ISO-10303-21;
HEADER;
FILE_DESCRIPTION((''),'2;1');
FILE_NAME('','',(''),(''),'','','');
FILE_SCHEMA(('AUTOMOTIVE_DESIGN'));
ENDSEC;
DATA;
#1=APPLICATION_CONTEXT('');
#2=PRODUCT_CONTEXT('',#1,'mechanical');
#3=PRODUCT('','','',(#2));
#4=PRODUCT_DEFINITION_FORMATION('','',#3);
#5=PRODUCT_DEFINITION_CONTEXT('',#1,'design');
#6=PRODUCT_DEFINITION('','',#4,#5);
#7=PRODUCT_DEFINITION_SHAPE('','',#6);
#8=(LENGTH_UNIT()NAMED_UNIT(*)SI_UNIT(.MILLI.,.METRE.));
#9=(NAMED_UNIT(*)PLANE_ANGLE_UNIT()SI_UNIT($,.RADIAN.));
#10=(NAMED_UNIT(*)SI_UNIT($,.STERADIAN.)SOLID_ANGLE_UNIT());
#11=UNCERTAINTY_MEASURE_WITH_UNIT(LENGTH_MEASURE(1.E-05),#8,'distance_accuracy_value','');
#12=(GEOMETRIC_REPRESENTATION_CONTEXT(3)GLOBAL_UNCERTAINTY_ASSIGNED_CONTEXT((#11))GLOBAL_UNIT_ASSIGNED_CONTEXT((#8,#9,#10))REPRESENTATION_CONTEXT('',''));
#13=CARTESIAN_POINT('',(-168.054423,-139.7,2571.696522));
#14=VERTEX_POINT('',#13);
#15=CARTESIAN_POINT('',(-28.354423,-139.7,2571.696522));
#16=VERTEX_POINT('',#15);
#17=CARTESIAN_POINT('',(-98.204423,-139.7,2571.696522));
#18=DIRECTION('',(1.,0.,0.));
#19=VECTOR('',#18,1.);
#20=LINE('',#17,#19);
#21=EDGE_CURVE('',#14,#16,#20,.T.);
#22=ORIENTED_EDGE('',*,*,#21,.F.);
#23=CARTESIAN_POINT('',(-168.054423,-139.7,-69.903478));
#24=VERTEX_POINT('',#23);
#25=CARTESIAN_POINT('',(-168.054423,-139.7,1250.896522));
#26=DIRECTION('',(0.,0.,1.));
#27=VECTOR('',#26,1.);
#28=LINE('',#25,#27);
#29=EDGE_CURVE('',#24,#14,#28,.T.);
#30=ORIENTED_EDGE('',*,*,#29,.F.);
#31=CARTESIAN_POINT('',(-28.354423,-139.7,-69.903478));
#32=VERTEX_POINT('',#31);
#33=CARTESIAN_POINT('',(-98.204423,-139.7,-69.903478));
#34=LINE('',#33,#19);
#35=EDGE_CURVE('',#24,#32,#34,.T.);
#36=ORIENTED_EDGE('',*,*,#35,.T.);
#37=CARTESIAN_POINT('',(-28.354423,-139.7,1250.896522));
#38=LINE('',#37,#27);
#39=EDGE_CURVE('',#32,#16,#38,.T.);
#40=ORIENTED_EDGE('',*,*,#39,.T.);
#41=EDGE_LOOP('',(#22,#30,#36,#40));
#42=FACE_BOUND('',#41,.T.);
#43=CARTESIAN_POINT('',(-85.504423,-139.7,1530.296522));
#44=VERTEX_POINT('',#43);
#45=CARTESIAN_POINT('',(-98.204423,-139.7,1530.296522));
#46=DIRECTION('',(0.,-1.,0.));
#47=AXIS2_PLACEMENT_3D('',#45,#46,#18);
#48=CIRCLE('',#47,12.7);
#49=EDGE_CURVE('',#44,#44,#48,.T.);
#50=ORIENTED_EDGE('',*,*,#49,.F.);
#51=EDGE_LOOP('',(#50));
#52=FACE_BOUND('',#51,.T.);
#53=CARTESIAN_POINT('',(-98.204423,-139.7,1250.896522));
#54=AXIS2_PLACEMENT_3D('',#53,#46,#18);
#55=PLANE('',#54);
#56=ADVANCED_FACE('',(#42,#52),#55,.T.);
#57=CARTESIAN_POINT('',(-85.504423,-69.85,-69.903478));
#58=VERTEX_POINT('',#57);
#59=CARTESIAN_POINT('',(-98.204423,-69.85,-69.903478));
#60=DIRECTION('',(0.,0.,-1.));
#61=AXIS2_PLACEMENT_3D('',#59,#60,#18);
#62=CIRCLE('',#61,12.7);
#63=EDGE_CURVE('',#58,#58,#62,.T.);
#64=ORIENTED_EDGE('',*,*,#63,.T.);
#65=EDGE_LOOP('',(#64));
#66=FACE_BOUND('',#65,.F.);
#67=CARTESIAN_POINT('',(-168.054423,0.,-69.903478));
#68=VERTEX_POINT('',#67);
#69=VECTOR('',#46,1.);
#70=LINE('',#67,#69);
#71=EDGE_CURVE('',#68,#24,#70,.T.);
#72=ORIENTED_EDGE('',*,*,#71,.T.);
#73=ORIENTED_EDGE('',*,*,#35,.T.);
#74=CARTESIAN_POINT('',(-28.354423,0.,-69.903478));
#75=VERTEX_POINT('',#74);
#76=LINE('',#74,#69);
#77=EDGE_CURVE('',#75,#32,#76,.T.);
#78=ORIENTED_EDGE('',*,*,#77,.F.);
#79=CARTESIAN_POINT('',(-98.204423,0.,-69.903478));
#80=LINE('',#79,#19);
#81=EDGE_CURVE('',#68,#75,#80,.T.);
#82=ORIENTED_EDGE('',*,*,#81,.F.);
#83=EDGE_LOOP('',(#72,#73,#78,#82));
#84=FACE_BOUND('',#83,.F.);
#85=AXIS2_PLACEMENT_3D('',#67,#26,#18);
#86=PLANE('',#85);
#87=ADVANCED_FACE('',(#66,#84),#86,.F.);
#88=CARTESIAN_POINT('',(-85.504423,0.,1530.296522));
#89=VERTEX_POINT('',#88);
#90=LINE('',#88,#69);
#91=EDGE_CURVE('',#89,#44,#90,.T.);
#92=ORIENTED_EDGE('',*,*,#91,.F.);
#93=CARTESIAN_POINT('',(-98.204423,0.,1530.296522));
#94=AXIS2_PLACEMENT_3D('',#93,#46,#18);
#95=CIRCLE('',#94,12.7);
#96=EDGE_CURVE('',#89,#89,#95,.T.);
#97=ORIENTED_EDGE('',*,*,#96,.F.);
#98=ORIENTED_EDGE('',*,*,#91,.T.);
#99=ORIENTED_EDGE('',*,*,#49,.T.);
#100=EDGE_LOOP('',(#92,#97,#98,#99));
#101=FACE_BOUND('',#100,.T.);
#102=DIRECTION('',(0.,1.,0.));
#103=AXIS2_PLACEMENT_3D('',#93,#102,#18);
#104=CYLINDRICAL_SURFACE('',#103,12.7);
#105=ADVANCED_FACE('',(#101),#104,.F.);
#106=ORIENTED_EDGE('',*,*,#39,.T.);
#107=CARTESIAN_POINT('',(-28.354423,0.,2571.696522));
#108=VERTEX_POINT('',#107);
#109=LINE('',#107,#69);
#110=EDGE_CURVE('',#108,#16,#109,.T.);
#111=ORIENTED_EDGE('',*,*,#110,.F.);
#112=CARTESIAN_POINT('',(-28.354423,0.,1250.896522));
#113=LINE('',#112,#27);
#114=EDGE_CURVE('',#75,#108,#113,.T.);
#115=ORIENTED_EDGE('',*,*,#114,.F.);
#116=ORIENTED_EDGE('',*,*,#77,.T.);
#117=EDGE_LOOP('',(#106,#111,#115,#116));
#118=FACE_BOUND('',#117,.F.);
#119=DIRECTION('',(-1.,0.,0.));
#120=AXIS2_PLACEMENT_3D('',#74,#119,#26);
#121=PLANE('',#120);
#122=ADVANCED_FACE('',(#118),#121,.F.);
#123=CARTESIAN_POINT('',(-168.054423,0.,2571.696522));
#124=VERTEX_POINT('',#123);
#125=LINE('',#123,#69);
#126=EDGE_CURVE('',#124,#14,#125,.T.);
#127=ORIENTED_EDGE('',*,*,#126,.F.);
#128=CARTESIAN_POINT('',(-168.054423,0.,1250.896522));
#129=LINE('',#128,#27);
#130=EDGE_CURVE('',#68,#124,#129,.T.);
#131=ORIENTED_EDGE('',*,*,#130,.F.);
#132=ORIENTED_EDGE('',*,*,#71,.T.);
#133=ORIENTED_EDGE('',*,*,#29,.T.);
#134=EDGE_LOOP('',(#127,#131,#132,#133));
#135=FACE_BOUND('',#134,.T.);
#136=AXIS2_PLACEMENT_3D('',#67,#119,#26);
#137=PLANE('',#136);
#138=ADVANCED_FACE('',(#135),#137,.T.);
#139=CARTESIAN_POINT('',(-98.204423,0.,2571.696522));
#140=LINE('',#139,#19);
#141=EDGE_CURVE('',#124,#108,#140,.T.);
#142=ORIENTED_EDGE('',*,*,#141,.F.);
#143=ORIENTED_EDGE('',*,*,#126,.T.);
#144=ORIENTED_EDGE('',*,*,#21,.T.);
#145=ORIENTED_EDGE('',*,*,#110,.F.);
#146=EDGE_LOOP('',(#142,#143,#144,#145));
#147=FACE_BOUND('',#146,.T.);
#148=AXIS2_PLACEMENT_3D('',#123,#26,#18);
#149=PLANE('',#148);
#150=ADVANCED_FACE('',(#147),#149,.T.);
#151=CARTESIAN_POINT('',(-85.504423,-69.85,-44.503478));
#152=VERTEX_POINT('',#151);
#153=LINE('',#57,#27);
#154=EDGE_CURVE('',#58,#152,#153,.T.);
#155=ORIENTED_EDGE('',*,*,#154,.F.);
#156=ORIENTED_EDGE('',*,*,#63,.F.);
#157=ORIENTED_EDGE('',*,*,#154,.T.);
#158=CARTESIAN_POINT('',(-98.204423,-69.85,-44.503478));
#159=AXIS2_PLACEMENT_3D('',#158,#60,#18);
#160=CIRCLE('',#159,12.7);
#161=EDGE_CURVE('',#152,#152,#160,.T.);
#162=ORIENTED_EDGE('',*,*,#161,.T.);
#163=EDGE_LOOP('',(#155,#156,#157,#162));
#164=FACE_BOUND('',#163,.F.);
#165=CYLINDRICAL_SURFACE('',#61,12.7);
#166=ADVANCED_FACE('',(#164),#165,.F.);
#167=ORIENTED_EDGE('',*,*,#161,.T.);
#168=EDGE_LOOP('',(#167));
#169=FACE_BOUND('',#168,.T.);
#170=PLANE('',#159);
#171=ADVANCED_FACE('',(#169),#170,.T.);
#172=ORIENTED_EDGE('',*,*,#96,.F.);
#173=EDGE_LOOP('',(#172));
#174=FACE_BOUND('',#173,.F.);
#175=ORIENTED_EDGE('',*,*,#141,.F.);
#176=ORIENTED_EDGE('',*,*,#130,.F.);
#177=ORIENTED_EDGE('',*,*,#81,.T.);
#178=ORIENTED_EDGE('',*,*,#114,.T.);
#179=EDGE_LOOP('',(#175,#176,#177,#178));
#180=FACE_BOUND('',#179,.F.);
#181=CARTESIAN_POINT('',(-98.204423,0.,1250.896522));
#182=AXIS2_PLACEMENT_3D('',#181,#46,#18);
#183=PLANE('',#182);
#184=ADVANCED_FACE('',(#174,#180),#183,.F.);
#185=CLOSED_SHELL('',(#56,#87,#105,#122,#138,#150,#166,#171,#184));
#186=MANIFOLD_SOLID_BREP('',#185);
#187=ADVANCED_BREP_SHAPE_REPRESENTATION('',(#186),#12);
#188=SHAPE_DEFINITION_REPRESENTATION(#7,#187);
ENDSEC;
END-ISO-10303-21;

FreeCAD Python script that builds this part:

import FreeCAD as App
import Part
import Sketcher
Q = App.Units.Quantity

doc = App.newDocument("Part")
body = doc.addObject("PartDesign::Body", "Body")

# Sketch on XZ plane
sketch1 = doc.addObject("Sketcher::SketchObject", "Sketch")
body.addObject(sketch1)
sketch1.AttachmentSupport = (doc.XZ_Plane, [""])
sketch1.MapMode = "FlatFace"
sketch1.addGeometry(Part.LineSegment(App.Vector(-168, 2572, 0), App.Vector(-168, -70, 0)), False)
sketch1.addGeometry(Part.LineSegment(App.Vector(-168, -70, 0), App.Vector(-28, -70, 0)), False)
sketch1.addGeometry(Part.LineSegment(App.Vector(-28, -70, 0), App.Vector(-28, 2572, 0)), False)
sketch1.addGeometry(Part.LineSegment(App.Vector(-28, 2572, 0), App.Vector(-168, 2572, 0)), False)
sketch1.addGeometry(Part.Circle(App.Vector(-98, 1530, 0), App.Vector(0, 0, 1), 13), False)
sketch1.addConstraint(Sketcher.Constraint("Coincident", 0, 2, 1, 1))
sketch1.addConstraint(Sketcher.Constraint("Coincident", 1, 2, 2, 1))
sketch1.addConstraint(Sketcher.Constraint("Coincident", 2, 2, 3, 1))
sketch1.addConstraint(Sketcher.Constraint("Coincident", 3, 2, 0, 1))
sketch1.addConstraint(Sketcher.Constraint("Vertical", 0))
sketch1.addConstraint(Sketcher.Constraint("Horizontal", 1))
sketch1.addConstraint(Sketcher.Constraint("Vertical", 2))
sketch1.addConstraint(Sketcher.Constraint("Horizontal", 3))
sketch1.addConstraint(Sketcher.Constraint("Diameter", 4, Q("1 in")))
sketch1.addConstraint(Sketcher.Constraint("DistanceY", 0, 2, 0, 1, Q("104 in")))
sketch1.addConstraint(Sketcher.Constraint("DistanceX", 1, 1, 1, 2, Q("5.5 in")))
sketch1.addConstraint(Sketcher.Constraint("DistanceY", 0, 2, 4, 3, Q("63 in")))
sketch1.addConstraint(Sketcher.Constraint("DistanceX", 0, 2, 4, 3, Q("2.75 in")))
sketch1.addConstraint(Sketcher.Constraint("DistanceY", -1, 1, 4, 3, Q("1530.296522 mm")))
sketch1.addConstraint(Sketcher.Constraint("DistanceX", 4, 3, -1, 1, Q("98.204423 mm")))
pad1 = doc.addObject("PartDesign::Pad", "Pad")
body.addObject(pad1)
pad1.Profile = sketch1
pad1.Length = Q("5.5 in")

# Sketch on XY plane
sketch2 = doc.addObject("Sketcher::SketchObject", "Sketch001")
body.addObject(sketch2)
sketch2.AttachmentSupport = (doc.XY_Plane, [""])
sketch2.MapMode = "FlatFace"
sketch2.AttachmentOffset = App.Placement(App.Vector(0, 0, -69.903478), App.Rotation())
sketch2.addGeometry(Part.Circle(App.Vector(-98, -70, 0), App.Vector(0, 0, 1), 13), False)
sketch2.addConstraint(Sketcher.Constraint("Diameter", 0, Q("1 in")))
sketch2.addConstraint(Sketcher.Constraint("DistanceY", 0, 3, -1, 1, Q("2.75 in")))
sketch2.addConstraint(Sketcher.Constraint("DistanceX", 0, 3, -1, 1, Q("98.204423 mm")))
pocket1 = doc.addObject("PartDesign::Pocket", "Pocket")
body.addObject(pocket1)
pocket1.Profile = sketch2
pocket1.Length = Q("1 in")
pocket1.Reversed = True

doc.recompute()
